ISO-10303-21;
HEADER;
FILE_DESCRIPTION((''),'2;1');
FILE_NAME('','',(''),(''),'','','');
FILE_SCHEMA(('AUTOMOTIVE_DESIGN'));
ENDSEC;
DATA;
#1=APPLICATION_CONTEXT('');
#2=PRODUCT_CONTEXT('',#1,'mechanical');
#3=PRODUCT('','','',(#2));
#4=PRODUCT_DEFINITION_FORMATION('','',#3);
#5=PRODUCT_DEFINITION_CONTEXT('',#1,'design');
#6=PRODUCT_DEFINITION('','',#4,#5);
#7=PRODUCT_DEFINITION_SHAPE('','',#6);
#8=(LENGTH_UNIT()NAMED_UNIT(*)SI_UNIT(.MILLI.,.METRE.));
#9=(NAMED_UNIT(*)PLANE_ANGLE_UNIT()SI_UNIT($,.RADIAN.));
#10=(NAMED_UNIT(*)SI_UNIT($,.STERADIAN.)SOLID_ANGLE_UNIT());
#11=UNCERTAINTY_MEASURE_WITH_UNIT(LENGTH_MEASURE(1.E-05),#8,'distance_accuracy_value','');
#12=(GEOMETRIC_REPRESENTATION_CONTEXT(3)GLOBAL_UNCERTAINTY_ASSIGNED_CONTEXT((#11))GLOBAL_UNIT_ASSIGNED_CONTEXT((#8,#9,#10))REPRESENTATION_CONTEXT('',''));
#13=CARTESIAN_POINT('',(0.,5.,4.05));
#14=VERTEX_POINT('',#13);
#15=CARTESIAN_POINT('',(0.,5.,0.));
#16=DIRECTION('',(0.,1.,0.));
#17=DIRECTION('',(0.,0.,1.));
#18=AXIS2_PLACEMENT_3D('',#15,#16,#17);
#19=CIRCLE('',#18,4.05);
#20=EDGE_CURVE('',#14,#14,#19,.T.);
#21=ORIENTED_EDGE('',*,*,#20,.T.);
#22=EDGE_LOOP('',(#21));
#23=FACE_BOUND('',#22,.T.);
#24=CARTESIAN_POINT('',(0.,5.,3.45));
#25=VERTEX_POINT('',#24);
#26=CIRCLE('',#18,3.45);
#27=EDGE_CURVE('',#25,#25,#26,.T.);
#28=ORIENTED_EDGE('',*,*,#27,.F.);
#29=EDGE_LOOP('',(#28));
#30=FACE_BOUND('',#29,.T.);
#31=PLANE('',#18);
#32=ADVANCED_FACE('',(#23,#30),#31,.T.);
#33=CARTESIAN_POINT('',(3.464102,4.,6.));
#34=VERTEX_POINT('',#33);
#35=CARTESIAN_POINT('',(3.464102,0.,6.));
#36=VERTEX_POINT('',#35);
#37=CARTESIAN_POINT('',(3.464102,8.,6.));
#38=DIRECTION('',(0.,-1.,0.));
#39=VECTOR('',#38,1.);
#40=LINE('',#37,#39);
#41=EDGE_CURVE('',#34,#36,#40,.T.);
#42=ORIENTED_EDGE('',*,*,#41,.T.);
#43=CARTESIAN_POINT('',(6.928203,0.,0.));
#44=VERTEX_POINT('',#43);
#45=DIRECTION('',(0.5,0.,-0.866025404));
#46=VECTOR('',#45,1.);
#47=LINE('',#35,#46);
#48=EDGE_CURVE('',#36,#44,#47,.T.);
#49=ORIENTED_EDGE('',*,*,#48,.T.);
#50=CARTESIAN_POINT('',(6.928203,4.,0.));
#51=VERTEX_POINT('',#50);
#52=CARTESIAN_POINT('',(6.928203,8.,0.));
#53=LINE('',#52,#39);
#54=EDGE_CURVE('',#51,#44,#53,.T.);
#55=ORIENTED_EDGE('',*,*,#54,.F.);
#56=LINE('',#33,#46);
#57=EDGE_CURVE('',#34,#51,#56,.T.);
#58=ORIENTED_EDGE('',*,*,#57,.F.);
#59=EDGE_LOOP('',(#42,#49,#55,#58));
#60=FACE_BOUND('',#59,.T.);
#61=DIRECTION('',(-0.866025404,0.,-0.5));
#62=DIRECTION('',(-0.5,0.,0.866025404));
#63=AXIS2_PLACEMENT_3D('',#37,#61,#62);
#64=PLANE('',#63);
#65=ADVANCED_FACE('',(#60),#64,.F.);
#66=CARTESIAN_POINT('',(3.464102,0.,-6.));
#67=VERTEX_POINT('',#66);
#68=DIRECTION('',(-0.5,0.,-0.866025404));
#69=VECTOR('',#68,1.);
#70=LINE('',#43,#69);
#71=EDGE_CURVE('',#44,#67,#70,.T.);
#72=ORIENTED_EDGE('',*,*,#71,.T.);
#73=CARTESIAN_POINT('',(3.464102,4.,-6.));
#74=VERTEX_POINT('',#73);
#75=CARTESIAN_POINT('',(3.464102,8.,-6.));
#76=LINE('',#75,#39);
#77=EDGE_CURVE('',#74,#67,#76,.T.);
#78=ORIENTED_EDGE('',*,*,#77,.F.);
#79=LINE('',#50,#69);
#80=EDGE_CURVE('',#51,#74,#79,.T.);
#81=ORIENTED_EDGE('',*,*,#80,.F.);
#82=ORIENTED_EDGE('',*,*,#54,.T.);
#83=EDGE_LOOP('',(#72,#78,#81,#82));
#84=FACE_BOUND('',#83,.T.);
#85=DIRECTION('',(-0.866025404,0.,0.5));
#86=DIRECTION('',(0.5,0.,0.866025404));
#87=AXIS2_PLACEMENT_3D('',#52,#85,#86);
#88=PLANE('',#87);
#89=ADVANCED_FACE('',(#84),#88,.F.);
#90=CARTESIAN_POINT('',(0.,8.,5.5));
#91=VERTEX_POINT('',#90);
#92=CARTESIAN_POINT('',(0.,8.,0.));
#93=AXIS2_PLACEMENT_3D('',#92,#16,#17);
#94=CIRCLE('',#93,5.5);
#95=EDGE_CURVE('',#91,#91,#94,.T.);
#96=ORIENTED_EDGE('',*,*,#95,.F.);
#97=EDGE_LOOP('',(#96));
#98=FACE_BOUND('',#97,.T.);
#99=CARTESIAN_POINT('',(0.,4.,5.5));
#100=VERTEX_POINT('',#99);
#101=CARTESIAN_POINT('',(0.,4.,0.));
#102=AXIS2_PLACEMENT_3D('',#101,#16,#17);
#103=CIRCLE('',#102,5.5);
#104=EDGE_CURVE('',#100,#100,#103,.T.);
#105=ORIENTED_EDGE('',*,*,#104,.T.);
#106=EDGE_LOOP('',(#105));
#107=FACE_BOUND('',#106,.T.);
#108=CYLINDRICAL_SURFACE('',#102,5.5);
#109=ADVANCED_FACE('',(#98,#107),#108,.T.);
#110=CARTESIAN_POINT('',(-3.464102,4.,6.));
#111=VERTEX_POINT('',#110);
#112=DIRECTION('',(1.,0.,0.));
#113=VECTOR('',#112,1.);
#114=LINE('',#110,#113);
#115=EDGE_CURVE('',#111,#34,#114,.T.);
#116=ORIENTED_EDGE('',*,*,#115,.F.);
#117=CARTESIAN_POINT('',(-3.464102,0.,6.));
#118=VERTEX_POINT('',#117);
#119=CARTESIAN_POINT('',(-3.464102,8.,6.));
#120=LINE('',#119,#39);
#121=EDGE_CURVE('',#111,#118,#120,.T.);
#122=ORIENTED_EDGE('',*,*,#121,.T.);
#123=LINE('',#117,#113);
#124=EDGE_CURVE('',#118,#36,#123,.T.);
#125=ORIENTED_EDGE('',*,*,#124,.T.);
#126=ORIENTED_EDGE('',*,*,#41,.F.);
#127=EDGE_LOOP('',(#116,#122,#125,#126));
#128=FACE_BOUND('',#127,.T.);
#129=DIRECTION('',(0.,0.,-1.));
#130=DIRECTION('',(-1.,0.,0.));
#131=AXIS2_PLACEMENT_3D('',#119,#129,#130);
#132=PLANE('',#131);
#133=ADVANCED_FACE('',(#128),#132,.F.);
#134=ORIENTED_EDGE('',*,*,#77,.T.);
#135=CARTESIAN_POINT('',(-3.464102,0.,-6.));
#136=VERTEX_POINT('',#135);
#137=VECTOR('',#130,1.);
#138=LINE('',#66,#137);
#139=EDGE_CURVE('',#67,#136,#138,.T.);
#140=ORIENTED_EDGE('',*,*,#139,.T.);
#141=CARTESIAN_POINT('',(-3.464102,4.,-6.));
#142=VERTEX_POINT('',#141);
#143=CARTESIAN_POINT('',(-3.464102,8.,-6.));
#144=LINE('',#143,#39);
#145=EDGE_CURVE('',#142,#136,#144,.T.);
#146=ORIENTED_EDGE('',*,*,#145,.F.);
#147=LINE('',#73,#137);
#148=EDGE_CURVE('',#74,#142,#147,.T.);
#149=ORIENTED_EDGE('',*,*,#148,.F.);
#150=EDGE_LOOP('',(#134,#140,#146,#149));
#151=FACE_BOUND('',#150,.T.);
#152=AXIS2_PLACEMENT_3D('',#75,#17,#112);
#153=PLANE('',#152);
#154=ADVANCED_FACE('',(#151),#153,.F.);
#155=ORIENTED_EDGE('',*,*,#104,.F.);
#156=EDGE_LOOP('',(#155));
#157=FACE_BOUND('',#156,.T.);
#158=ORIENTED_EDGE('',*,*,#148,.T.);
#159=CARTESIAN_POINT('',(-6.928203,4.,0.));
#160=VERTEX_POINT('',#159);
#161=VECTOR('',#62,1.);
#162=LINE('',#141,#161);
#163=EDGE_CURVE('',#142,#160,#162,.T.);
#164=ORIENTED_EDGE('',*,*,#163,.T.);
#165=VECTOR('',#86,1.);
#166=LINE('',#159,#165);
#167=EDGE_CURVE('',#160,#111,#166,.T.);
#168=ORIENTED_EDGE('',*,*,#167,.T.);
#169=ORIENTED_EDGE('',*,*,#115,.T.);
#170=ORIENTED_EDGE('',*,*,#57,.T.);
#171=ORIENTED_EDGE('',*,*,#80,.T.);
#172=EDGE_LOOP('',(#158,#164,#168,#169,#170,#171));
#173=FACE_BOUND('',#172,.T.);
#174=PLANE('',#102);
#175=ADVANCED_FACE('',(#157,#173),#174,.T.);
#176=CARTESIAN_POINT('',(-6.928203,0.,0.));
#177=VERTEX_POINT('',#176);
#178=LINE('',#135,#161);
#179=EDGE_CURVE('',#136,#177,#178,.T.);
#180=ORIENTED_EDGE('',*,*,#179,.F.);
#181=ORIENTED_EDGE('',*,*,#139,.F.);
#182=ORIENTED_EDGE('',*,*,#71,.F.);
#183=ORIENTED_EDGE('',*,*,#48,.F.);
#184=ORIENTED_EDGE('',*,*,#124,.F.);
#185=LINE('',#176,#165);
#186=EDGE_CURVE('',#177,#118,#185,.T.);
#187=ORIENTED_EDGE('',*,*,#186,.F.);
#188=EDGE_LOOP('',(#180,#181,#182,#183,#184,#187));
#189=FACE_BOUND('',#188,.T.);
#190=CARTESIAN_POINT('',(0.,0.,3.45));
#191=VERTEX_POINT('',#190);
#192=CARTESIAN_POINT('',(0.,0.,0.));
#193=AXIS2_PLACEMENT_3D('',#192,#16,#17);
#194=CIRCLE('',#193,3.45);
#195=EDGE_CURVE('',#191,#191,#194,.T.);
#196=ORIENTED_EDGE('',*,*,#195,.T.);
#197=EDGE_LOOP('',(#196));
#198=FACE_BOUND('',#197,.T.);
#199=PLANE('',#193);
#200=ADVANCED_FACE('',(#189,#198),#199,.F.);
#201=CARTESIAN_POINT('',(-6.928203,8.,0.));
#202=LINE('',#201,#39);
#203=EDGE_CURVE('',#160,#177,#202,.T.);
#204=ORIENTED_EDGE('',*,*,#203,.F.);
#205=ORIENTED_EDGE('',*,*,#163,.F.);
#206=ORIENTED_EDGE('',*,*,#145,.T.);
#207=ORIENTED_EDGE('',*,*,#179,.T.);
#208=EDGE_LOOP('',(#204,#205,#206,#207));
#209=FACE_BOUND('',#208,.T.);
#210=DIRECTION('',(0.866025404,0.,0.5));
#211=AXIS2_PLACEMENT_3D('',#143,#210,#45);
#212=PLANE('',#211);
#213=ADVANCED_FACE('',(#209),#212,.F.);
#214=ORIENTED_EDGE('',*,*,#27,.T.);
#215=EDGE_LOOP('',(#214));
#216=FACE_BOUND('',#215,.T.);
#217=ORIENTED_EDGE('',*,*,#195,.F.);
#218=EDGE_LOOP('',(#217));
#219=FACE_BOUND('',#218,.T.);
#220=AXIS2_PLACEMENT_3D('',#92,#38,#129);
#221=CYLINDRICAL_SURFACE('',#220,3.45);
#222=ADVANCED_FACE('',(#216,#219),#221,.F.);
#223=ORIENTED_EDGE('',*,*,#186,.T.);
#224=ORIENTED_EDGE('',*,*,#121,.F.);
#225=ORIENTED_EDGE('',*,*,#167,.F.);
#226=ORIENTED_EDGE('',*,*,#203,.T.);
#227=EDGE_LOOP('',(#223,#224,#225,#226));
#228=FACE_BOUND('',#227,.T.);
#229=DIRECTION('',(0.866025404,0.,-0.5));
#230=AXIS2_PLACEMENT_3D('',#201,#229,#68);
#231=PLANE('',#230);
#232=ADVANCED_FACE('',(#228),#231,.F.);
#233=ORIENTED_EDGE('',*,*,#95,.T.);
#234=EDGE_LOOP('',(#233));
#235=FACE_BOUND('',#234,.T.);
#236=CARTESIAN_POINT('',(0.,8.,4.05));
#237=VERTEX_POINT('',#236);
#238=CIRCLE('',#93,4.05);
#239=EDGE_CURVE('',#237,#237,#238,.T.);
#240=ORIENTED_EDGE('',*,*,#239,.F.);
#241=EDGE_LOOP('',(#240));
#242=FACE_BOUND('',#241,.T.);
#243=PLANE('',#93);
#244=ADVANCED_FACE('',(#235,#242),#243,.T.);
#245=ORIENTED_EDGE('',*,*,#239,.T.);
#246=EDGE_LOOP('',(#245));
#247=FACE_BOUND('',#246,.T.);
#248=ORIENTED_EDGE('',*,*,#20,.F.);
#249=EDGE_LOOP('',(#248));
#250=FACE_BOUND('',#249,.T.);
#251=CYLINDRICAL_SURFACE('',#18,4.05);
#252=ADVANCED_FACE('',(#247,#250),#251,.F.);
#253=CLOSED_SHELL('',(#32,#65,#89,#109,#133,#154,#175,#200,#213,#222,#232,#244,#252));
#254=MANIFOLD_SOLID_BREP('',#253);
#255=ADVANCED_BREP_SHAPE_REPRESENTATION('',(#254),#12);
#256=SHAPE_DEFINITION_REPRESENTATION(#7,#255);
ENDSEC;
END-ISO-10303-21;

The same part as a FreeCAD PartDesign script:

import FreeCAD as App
import Part
import Sketcher

V = App.Vector
Q = App.Units.Quantity

doc = App.newDocument("Part")
body = doc.addObject("PartDesign::Body", "Body")

sketch1 = body.newObject("Sketcher::SketchObject", "Sketch")
sketch1.AttachmentSupport = (doc.getObject("XZ_Plane"), [""])
sketch1.MapMode = "FlatFace"
sketch1.addGeometry([
    Part.LineSegment(V(3.5, -6, 0), V(-3.5, -6, 0)),
    Part.LineSegment(V(-3.5, -6, 0), V(-6.9, 0, 0)),
    Part.LineSegment(V(-6.9, 0, 0), V(-3.5, 6, 0)),
    Part.LineSegment(V(-3.5, 6, 0), V(3.5, 6, 0)),
    Part.LineSegment(V(3.5, 6, 0), V(6.9, 0, 0)),
    Part.LineSegment(V(6.9, 0, 0), V(3.5, -6, 0)),
    Part.Circle(V(0, 0, 0), V(0, 0, 1), 3.5),
], False)
sketch1.addConstraint([
    Sketcher.Constraint("Coincident", 0, 2, 1, 1),
    Sketcher.Constraint("Coincident", 1, 2, 2, 1),
    Sketcher.Constraint("Coincident", 2, 2, 3, 1),
    Sketcher.Constraint("Coincident", 3, 2, 4, 1),
    Sketcher.Constraint("Coincident", 4, 2, 5, 1),
    Sketcher.Constraint("Coincident", 5, 2, 0, 1),
    Sketcher.Constraint("Horizontal", 0),
    Sketcher.Constraint("Horizontal", 3),
    Sketcher.Constraint("Coincident", 6, 3, -1, 1),
    Sketcher.Constraint("Symmetric", 0, 2, 3, 2, -1, 1),
    Sketcher.Constraint("Symmetric", 1, 2, 4, 2, -1, 1),
    Sketcher.Constraint("PointOnObject", 1, 2, -1),
    Sketcher.Constraint("Parallel", 2, 5),
    Sketcher.Constraint("Vertical", 0, 2, 2, 2),
    Sketcher.Constraint("Diameter", 6, 6.9),
    Sketcher.Constraint("Angle", 1, Q("120 deg")),
    Sketcher.Constraint("DistanceY", 0, 2, -1, 1, 6.0),
    Sketcher.Constraint("DistanceX", 0, 2, -1, 1, 3.464102),
])
pad1 = body.newObject("PartDesign::Pad", "Pad")
pad1.Profile = sketch1
pad1.Length = 8
pad1.Reversed = True

sketch2 = body.newObject("Sketcher::SketchObject", "Sketch001")
sketch2.AttachmentSupport = (doc.getObject("XZ_Plane"), [""])
sketch2.MapMode = "FlatFace"
sketch2.AttachmentOffset = App.Placement(V(0, 0, -8), App.Rotation())
sketch2.addGeometry(Part.Circle(V(0, 0, 0), V(0, 0, 1), 4), False)
sketch2.addConstraint([
    Sketcher.Constraint("Coincident", 0, 3, -1, 1),
    Sketcher.Constraint("Diameter", 0, 8.1),
])
pocket1 = body.newObject("PartDesign::Pocket", "Pocket")
pocket1.Profile = sketch2
pocket1.Length = 3
pocket1.Reversed = True

sketch3 = body.newObject("Sketcher::SketchObject", "Sketch002")
sketch3.AttachmentSupport = (doc.getObject("XZ_Plane"), [""])
sketch3.MapMode = "FlatFace"
sketch3.AttachmentOffset = App.Placement(V(0, 0, -8), App.Rotation())
sketch3.addGeometry([
    Part.Circle(V(0, 0, 0), V(0, 0, 1), 10),
    Part.Circle(V(0, 0, 0), V(0, 0, 1), 6),
], False)
sketch3.addConstraint([
    Sketcher.Constraint("Coincident", 0, 3, -1, 1),
    Sketcher.Constraint("Coincident", 1, 3, -1, 1),
    Sketcher.Constraint("Diameter", 0, 20.0),
    Sketcher.Constraint("Diameter", 1, 11.0),
])
pocket2 = body.newObject("PartDesign::Pocket", "Pocket001")
pocket2.Profile = sketch3
pocket2.Length = 4
pocket2.Reversed = True

doc.recompute()
